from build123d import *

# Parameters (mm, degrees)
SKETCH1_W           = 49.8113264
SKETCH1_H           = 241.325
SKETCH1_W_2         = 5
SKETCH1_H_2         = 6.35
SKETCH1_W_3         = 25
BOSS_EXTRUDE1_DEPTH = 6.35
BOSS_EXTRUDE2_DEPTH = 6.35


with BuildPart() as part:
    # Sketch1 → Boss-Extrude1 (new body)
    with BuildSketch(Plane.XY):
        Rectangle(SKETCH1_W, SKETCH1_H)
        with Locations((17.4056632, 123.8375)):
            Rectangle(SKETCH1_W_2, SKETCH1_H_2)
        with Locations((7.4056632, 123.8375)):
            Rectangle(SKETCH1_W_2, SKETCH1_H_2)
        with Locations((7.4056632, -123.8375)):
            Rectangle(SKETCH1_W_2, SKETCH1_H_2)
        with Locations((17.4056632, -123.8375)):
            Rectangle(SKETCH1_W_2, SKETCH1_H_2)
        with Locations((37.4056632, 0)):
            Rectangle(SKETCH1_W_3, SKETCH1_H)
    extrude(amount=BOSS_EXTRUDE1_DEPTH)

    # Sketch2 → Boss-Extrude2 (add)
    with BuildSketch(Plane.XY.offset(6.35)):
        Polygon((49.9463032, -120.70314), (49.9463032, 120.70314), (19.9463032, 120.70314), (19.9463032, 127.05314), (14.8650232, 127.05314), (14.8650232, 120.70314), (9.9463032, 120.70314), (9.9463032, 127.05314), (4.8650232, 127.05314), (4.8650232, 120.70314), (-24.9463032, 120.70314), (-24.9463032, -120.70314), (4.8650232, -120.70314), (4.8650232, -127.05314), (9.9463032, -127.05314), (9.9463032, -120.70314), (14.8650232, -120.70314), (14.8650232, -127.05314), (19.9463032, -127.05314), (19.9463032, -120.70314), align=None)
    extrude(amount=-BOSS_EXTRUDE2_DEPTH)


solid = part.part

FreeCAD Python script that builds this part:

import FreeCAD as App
import Part
import Sketcher
from FreeCAD import Vector

doc = App.newDocument("Part")
body = doc.addObject("PartDesign::Body", "Body")

sketch1 = body.newObject("Sketcher::SketchObject", "Sketch")
sketch1.AttachmentSupport = (doc.getObject("XY_Plane"), [""])
sketch1.MapMode = "FlatFace"
sketch1.addGeometry(Part.LineSegment(Vector(-24.9, 120.7, 0), Vector(-24.9, -120.7, 0)), False)
sketch1.addGeometry(Part.LineSegment(Vector(-24.9, -120.7, 0), Vector(4.9, -120.7, 0)), False)
sketch1.addGeometry(Part.LineSegment(Vector(4.9, -120.7, 0), Vector(4.9, -127, 0)), False)
sketch1.addGeometry(Part.LineSegment(Vector(4.9, -127, 0), Vector(9.9, -127, 0)), False)
sketch1.addGeometry(Part.LineSegment(Vector(9.9, -127, 0), Vector(9.9, -120.7, 0)), False)
sketch1.addGeometry(Part.LineSegment(Vector(9.9, -120.7, 0), Vector(14.9, -120.7, 0)), False)
sketch1.addGeometry(Part.LineSegment(Vector(14.9, -120.7, 0), Vector(14.9, -127, 0)), False)
sketch1.addGeometry(Part.LineSegment(Vector(14.9, -127, 0), Vector(19.9, -127, 0)), False)
sketch1.addGeometry(Part.LineSegment(Vector(19.9, -127, 0), Vector(19.9, -120.7, 0)), False)
sketch1.addGeometry(Part.LineSegment(Vector(19.9, -120.7, 0), Vector(49.9, -120.7, 0)), False)
sketch1.addGeometry(Part.LineSegment(Vector(49.9, -120.7, 0), Vector(49.9, 120.7, 0)), False)
sketch1.addGeometry(Part.LineSegment(Vector(49.9, 120.7, 0), Vector(19.9, 120.7, 0)), False)
sketch1.addGeometry(Part.LineSegment(Vector(19.9, 120.7, 0), Vector(19.9, 127, 0)), False)
sketch1.addGeometry(Part.LineSegment(Vector(19.9, 127, 0), Vector(14.9, 127, 0)), False)
sketch1.addGeometry(Part.LineSegment(Vector(14.9, 127, 0), Vector(14.9, 120.7, 0)), False)
sketch1.addGeometry(Part.LineSegment(Vector(14.9, 120.7, 0), Vector(9.9, 120.7, 0)), False)
sketch1.addGeometry(Part.LineSegment(Vector(9.9, 120.7, 0), Vector(9.9, 127, 0)), False)
sketch1.addGeometry(Part.LineSegment(Vector(9.9, 127, 0), Vector(4.9, 127, 0)), False)
sketch1.addGeometry(Part.LineSegment(Vector(4.9, 127, 0), Vector(4.9, 120.7, 0)), False)
sketch1.addGeometry(Part.LineSegment(Vector(4.9, 120.7, 0), Vector(-24.9, 120.7, 0)), False)
sketch1.addConstraint(Sketcher.Constraint("Coincident", 0, 2, 1, 1))
sketch1.addConstraint(Sketcher.Constraint("Coincident", 1, 2, 2, 1))
sketch1.addConstraint(Sketcher.Constraint("Coincident", 2, 2, 3, 1))
sketch1.addConstraint(Sketcher.Constraint("Coincident", 3, 2, 4, 1))
sketch1.addConstraint(Sketcher.Constraint("Coincident", 4, 2, 5, 1))
sketch1.addConstraint(Sketcher.Constraint("Coincident", 5, 2, 6, 1))
sketch1.addConstraint(Sketcher.Constraint("Coincident", 6, 2, 7, 1))
sketch1.addConstraint(Sketcher.Constraint("Coincident", 7, 2, 8, 1))
sketch1.addConstraint(Sketcher.Constraint("Coincident", 8, 2, 9, 1))
sketch1.addConstraint(Sketcher.Constraint("Coincident", 9, 2, 10, 1))
sketch1.addConstraint(Sketcher.Constraint("Coincident", 10, 2, 11, 1))
sketch1.addConstraint(Sketcher.Constraint("Coincident", 11, 2, 12, 1))
sketch1.addConstraint(Sketcher.Constraint("Coincident", 12, 2, 13, 1))
sketch1.addConstraint(Sketcher.Constraint("Coincident", 13, 2, 14, 1))
sketch1.addConstraint(Sketcher.Constraint("Coincident", 14, 2, 15, 1))
sketch1.addConstraint(Sketcher.Constraint("Coincident", 15, 2, 16, 1))
sketch1.addConstraint(Sketcher.Constraint("Coincident", 16, 2, 17, 1))
sketch1.addConstraint(Sketcher.Constraint("Coincident", 17, 2, 18, 1))
sketch1.addConstraint(Sketcher.Constraint("Coincident", 18, 2, 19, 1))
sketch1.addConstraint(Sketcher.Constraint("Coincident", 19, 2, 0, 1))
sketch1.addConstraint(Sketcher.Constraint("Vertical", 0))
sketch1.addConstraint(Sketcher.Constraint("Horizontal", 1))
sketch1.addConstraint(Sketcher.Constraint("Vertical", 2))
sketch1.addConstraint(Sketcher.Constraint("Horizontal", 3))
sketch1.addConstraint(Sketcher.Constraint("Vertical", 4))
sketch1.addConstraint(Sketcher.Constraint("Horizontal", 5))
sketch1.addConstraint(Sketcher.Constraint("Vertical", 6))
sketch1.addConstraint(Sketcher.Constraint("Horizontal", 7))
sketch1.addConstraint(Sketcher.Constraint("Vertical", 8))
sketch1.addConstraint(Sketcher.Constraint("Horizontal", 9))
sketch1.addConstraint(Sketcher.Constraint("Vertical", 10))
sketch1.addConstraint(Sketcher.Constraint("Horizontal", 11))
sketch1.addConstraint(Sketcher.Constraint("Vertical", 12))
sketch1.addConstraint(Sketcher.Constraint("Horizontal", 13))
sketch1.addConstraint(Sketcher.Constraint("Vertical", 14))
sketch1.addConstraint(Sketcher.Constraint("Horizontal", 15))
sketch1.addConstraint(Sketcher.Constraint("Vertical", 16))
sketch1.addConstraint(Sketcher.Constraint("Horizontal", 17))
sketch1.addConstraint(Sketcher.Constraint("Vertical", 18))
sketch1.addConstraint(Sketcher.Constraint("Horizontal", 19))
sketch1.addConstraint(Sketcher.Constraint("Symmetric", 8, 2, 11, 2, -1))
sketch1.addConstraint(Sketcher.Constraint("Symmetric", 6, 2, 13, 2, -1))
sketch1.addConstraint(Sketcher.Constraint("Symmetric", 4, 2, 15, 2, -1))
sketch1.addConstraint(Sketcher.Constraint("Symmetric", 2, 2, 17, 2, -1))
sketch1.addConstraint(Sketcher.Constraint("Horizontal", 1, 2, 4, 2))
sketch1.addConstraint(Sketcher.Constraint("Horizontal", 3, 2, 6, 2))
sketch1.addConstraint(Sketcher.Constraint("Horizontal", 5, 2, 8, 2))
sketch1.addConstraint(Sketcher.Constraint("Horizontal", 15, 2, 18, 2))
sketch1.addConstraint(Sketcher.Constraint("Equal", 3, 5))
sketch1.addConstraint(Sketcher.Constraint("Equal", 5, 7))
sketch1.addConstraint(Sketcher.Constraint("DistanceX", 3, 1, 3, 2, 5.0))
sketch1.addConstraint(Sketcher.Constraint("DistanceX", 9, 1, 9, 2, 30.0))
sketch1.addConstraint(Sketcher.Constraint("DistanceY", 2, 2, 2, 1, 6.35))
sketch1.addConstraint(Sketcher.Constraint("DistanceY", 0, 2, 0, 1, 241.325))
sketch1.addConstraint(Sketcher.Constraint("DistanceX", 1, 1, 1, 2, 29.811326))
sketch1.addConstraint(Sketcher.Constraint("DistanceX", 0, 2, -1, 1, 24.905663))
pad1 = body.newObject("PartDesign::Pad", "Pad")
pad1.Profile = sketch1
pad1.Length = 6.35

sketch2 = body.newObject("Sketcher::SketchObject", "Sketch001")
sketch2.AttachmentSupport = (doc.getObject("XY_Plane"), [""])
sketch2.MapMode = "FlatFace"
sketch2.AttachmentOffset = App.Placement(Vector(0, 0, 6.35), App.Rotation())
sketch2.addGeometry(Part.LineSegment(Vector(49.9, -120.7, 0), Vector(49.9, 120.7, 0)), False)
sketch2.addGeometry(Part.LineSegment(Vector(49.9, 120.7, 0), Vector(19.9, 120.7, 0)), False)
sketch2.addGeometry(Part.LineSegment(Vector(19.9, 120.7, 0), Vector(19.9, 127.1, 0)), False)
sketch2.addGeometry(Part.LineSegment(Vector(19.9, 127.1, 0), Vector(14.9, 127.1, 0)), False)
sketch2.addGeometry(Part.LineSegment(Vector(14.9, 127.1, 0), Vector(14.9, 120.7, 0)), False)
sketch2.addGeometry(Part.LineSegment(Vector(14.9, 120.7, 0), Vector(9.9, 120.7, 0)), False)
sketch2.addGeometry(Part.LineSegment(Vector(9.9, 120.7, 0), Vector(9.9, 127.1, 0)), False)
sketch2.addGeometry(Part.LineSegment(Vector(9.9, 127.1, 0), Vector(4.9, 127.1, 0)), False)
sketch2.addGeometry(Part.LineSegment(Vector(4.9, 127.1, 0), Vector(4.9, 120.7, 0)), False)
sketch2.addGeometry(Part.LineSegment(Vector(4.9, 120.7, 0), Vector(-24.9, 120.7, 0)), False)
sketch2.addGeometry(Part.LineSegment(Vector(-24.9, 120.7, 0), Vector(-24.9, -120.7, 0)), False)
sketch2.addGeometry(Part.LineSegment(Vector(-24.9, -120.7, 0), Vector(4.9, -120.7, 0)), False)
sketch2.addGeometry(Part.LineSegment(Vector(4.9, -120.7, 0), Vector(4.9, -127.1, 0)), False)
sketch2.addGeometry(Part.LineSegment(Vector(4.9, -127.1, 0), Vector(9.9, -127.1, 0)), False)
sketch2.addGeometry(Part.LineSegment(Vector(9.9, -127.1, 0), Vector(9.9, -120.7, 0)), False)
sketch2.addGeometry(Part.LineSegment(Vector(9.9, -120.7, 0), Vector(14.9, -120.7, 0)), False)
sketch2.addGeometry(Part.LineSegment(Vector(14.9, -120.7, 0), Vector(14.9, -127.1, 0)), False)
sketch2.addGeometry(Part.LineSegment(Vector(14.9, -127.1, 0), Vector(19.9, -127.1, 0)), False)
sketch2.addGeometry(Part.LineSegment(Vector(19.9, -127.1, 0), Vector(19.9, -120.7, 0)), False)
sketch2.addGeometry(Part.LineSegment(Vector(19.9, -120.7, 0), Vector(49.9, -120.7, 0)), False)
sketch2.addConstraint(Sketcher.Constraint("Coincident", 0, 2, 1, 1))
sketch2.addConstraint(Sketcher.Constraint("Coincident", 1, 2, 2, 1))
sketch2.addConstraint(Sketcher.Constraint("Coincident", 2, 2, 3, 1))
sketch2.addConstraint(Sketcher.Constraint("Coincident", 3, 2, 4, 1))
sketch2.addConstraint(Sketcher.Constraint("Coincident", 4, 2, 5, 1))
sketch2.addConstraint(Sketcher.Constraint("Coincident", 5, 2, 6, 1))
sketch2.addConstraint(Sketcher.Constraint("Coincident", 6, 2, 7, 1))
sketch2.addConstraint(Sketcher.Constraint("Coincident", 7, 2, 8, 1))
sketch2.addConstraint(Sketcher.Constraint("Coincident", 8, 2, 9, 1))
sketch2.addConstraint(Sketcher.Constraint("Coincident", 9, 2, 10, 1))
sketch2.addConstraint(Sketcher.Constraint("Coincident", 10, 2, 11, 1))
sketch2.addConstraint(Sketcher.Constraint("Coincident", 11, 2, 12, 1))
sketch2.addConstraint(Sketcher.Constraint("Coincident", 12, 2, 13, 1))
sketch2.addConstraint(Sketcher.Constraint("Coincident", 13, 2, 14, 1))
sketch2.addConstraint(Sketcher.Constraint("Coincident", 14, 2, 15, 1))
sketch2.addConstraint(Sketcher.Constraint("Coincident", 15, 2, 16, 1))
sketch2.addConstraint(Sketcher.Constraint("Coincident", 16, 2, 17, 1))
sketch2.addConstraint(Sketcher.Constraint("Coincident", 17, 2, 18, 1))
sketch2.addConstraint(Sketcher.Constraint("Coincident", 18, 2, 19, 1))
sketch2.addConstraint(Sketcher.Constraint("Coincident", 19, 2, 0, 1))
sketch2.addConstraint(Sketcher.Constraint("Vertical", 0))
sketch2.addConstraint(Sketcher.Constraint("Horizontal", 1))
sketch2.addConstraint(Sketcher.Constraint("Vertical", 2))
sketch2.addConstraint(Sketcher.Constraint("Horizontal", 3))
sketch2.addConstraint(Sketcher.Constraint("Vertical", 4))
sketch2.addConstraint(Sketcher.Constraint("Horizontal", 5))
sketch2.addConstraint(Sketcher.Constraint("Vertical", 6))
sketch2.addConstraint(Sketcher.Constraint("Horizontal", 7))
sketch2.addConstraint(Sketcher.Constraint("Vertical", 8))
sketch2.addConstraint(Sketcher.Constraint("Horizontal", 9))
sketch2.addConstraint(Sketcher.Constraint("Vertical", 10))
sketch2.addConstraint(Sketcher.Constraint("Horizontal", 11))
sketch2.addConstraint(Sketcher.Constraint("Vertical", 12))
sketch2.addConstraint(Sketcher.Constraint("Horizontal", 13))
sketch2.addConstraint(Sketcher.Constraint("Vertical", 14))
sketch2.addConstraint(Sketcher.Constraint("Horizontal", 15))
sketch2.addConstraint(Sketcher.Constraint("Vertical", 16))
sketch2.addConstraint(Sketcher.Constraint("Horizontal", 17))
sketch2.addConstraint(Sketcher.Constraint("Vertical", 18))
sketch2.addConstraint(Sketcher.Constraint("Horizontal", 19))
sketch2.addConstraint(Sketcher.Constraint("Symmetric", 8, 2, 11, 2, -1))
sketch2.addConstraint(Sketcher.Constraint("Symmetric", 6, 2, 13, 2, -1))
sketch2.addConstraint(Sketcher.Constraint("Symmetric", 4, 2, 15, 2, -1))
sketch2.addConstraint(Sketcher.Constraint("Symmetric", 2, 2, 17, 2, -1))
sketch2.addConstraint(Sketcher.Constraint("Horizontal", 1, 2, 4, 2))
sketch2.addConstraint(Sketcher.Constraint("Horizontal", 3, 2, 6, 2))
sketch2.addConstraint(Sketcher.Constraint("Horizontal", 5, 2, 8, 2))
sketch2.addConstraint(Sketcher.Constraint("Horizontal", 15, 2, 18, 2))
sketch2.addConstraint(Sketcher.Constraint("Equal", 3, 7))
sketch2.addConstraint(Sketcher.Constraint("DistanceX", 1, 2, 1, 1, 30.0))
sketch2.addConstraint(Sketcher.Constraint("DistanceX", 5, 2, 1, 2, 10.0))
sketch2.addConstraint(Sketcher.Constraint("DistanceY", 2, 1, 2, 2, 6.35))
sketch2.addConstraint(Sketcher.Constraint("DistanceX", 3, 2, 3, 1, 5.08128))
sketch2.addConstraint(Sketcher.Constraint("DistanceY", 0, 1, 0, 2, 241.40628))
sketch2.addConstraint(Sketcher.Constraint("DistanceX", 9, 2, 9, 1, 29.811326))
sketch2.addConstraint(Sketcher.Constraint("DistanceX", -1, 1, 0, 2, 49.946303))
pad2 = body.newObject("PartDesign::Pad", "Pad001")
pad2.Profile = sketch2
pad2.Length = 6.35
pad2.Reversed = True

doc.recompute()
